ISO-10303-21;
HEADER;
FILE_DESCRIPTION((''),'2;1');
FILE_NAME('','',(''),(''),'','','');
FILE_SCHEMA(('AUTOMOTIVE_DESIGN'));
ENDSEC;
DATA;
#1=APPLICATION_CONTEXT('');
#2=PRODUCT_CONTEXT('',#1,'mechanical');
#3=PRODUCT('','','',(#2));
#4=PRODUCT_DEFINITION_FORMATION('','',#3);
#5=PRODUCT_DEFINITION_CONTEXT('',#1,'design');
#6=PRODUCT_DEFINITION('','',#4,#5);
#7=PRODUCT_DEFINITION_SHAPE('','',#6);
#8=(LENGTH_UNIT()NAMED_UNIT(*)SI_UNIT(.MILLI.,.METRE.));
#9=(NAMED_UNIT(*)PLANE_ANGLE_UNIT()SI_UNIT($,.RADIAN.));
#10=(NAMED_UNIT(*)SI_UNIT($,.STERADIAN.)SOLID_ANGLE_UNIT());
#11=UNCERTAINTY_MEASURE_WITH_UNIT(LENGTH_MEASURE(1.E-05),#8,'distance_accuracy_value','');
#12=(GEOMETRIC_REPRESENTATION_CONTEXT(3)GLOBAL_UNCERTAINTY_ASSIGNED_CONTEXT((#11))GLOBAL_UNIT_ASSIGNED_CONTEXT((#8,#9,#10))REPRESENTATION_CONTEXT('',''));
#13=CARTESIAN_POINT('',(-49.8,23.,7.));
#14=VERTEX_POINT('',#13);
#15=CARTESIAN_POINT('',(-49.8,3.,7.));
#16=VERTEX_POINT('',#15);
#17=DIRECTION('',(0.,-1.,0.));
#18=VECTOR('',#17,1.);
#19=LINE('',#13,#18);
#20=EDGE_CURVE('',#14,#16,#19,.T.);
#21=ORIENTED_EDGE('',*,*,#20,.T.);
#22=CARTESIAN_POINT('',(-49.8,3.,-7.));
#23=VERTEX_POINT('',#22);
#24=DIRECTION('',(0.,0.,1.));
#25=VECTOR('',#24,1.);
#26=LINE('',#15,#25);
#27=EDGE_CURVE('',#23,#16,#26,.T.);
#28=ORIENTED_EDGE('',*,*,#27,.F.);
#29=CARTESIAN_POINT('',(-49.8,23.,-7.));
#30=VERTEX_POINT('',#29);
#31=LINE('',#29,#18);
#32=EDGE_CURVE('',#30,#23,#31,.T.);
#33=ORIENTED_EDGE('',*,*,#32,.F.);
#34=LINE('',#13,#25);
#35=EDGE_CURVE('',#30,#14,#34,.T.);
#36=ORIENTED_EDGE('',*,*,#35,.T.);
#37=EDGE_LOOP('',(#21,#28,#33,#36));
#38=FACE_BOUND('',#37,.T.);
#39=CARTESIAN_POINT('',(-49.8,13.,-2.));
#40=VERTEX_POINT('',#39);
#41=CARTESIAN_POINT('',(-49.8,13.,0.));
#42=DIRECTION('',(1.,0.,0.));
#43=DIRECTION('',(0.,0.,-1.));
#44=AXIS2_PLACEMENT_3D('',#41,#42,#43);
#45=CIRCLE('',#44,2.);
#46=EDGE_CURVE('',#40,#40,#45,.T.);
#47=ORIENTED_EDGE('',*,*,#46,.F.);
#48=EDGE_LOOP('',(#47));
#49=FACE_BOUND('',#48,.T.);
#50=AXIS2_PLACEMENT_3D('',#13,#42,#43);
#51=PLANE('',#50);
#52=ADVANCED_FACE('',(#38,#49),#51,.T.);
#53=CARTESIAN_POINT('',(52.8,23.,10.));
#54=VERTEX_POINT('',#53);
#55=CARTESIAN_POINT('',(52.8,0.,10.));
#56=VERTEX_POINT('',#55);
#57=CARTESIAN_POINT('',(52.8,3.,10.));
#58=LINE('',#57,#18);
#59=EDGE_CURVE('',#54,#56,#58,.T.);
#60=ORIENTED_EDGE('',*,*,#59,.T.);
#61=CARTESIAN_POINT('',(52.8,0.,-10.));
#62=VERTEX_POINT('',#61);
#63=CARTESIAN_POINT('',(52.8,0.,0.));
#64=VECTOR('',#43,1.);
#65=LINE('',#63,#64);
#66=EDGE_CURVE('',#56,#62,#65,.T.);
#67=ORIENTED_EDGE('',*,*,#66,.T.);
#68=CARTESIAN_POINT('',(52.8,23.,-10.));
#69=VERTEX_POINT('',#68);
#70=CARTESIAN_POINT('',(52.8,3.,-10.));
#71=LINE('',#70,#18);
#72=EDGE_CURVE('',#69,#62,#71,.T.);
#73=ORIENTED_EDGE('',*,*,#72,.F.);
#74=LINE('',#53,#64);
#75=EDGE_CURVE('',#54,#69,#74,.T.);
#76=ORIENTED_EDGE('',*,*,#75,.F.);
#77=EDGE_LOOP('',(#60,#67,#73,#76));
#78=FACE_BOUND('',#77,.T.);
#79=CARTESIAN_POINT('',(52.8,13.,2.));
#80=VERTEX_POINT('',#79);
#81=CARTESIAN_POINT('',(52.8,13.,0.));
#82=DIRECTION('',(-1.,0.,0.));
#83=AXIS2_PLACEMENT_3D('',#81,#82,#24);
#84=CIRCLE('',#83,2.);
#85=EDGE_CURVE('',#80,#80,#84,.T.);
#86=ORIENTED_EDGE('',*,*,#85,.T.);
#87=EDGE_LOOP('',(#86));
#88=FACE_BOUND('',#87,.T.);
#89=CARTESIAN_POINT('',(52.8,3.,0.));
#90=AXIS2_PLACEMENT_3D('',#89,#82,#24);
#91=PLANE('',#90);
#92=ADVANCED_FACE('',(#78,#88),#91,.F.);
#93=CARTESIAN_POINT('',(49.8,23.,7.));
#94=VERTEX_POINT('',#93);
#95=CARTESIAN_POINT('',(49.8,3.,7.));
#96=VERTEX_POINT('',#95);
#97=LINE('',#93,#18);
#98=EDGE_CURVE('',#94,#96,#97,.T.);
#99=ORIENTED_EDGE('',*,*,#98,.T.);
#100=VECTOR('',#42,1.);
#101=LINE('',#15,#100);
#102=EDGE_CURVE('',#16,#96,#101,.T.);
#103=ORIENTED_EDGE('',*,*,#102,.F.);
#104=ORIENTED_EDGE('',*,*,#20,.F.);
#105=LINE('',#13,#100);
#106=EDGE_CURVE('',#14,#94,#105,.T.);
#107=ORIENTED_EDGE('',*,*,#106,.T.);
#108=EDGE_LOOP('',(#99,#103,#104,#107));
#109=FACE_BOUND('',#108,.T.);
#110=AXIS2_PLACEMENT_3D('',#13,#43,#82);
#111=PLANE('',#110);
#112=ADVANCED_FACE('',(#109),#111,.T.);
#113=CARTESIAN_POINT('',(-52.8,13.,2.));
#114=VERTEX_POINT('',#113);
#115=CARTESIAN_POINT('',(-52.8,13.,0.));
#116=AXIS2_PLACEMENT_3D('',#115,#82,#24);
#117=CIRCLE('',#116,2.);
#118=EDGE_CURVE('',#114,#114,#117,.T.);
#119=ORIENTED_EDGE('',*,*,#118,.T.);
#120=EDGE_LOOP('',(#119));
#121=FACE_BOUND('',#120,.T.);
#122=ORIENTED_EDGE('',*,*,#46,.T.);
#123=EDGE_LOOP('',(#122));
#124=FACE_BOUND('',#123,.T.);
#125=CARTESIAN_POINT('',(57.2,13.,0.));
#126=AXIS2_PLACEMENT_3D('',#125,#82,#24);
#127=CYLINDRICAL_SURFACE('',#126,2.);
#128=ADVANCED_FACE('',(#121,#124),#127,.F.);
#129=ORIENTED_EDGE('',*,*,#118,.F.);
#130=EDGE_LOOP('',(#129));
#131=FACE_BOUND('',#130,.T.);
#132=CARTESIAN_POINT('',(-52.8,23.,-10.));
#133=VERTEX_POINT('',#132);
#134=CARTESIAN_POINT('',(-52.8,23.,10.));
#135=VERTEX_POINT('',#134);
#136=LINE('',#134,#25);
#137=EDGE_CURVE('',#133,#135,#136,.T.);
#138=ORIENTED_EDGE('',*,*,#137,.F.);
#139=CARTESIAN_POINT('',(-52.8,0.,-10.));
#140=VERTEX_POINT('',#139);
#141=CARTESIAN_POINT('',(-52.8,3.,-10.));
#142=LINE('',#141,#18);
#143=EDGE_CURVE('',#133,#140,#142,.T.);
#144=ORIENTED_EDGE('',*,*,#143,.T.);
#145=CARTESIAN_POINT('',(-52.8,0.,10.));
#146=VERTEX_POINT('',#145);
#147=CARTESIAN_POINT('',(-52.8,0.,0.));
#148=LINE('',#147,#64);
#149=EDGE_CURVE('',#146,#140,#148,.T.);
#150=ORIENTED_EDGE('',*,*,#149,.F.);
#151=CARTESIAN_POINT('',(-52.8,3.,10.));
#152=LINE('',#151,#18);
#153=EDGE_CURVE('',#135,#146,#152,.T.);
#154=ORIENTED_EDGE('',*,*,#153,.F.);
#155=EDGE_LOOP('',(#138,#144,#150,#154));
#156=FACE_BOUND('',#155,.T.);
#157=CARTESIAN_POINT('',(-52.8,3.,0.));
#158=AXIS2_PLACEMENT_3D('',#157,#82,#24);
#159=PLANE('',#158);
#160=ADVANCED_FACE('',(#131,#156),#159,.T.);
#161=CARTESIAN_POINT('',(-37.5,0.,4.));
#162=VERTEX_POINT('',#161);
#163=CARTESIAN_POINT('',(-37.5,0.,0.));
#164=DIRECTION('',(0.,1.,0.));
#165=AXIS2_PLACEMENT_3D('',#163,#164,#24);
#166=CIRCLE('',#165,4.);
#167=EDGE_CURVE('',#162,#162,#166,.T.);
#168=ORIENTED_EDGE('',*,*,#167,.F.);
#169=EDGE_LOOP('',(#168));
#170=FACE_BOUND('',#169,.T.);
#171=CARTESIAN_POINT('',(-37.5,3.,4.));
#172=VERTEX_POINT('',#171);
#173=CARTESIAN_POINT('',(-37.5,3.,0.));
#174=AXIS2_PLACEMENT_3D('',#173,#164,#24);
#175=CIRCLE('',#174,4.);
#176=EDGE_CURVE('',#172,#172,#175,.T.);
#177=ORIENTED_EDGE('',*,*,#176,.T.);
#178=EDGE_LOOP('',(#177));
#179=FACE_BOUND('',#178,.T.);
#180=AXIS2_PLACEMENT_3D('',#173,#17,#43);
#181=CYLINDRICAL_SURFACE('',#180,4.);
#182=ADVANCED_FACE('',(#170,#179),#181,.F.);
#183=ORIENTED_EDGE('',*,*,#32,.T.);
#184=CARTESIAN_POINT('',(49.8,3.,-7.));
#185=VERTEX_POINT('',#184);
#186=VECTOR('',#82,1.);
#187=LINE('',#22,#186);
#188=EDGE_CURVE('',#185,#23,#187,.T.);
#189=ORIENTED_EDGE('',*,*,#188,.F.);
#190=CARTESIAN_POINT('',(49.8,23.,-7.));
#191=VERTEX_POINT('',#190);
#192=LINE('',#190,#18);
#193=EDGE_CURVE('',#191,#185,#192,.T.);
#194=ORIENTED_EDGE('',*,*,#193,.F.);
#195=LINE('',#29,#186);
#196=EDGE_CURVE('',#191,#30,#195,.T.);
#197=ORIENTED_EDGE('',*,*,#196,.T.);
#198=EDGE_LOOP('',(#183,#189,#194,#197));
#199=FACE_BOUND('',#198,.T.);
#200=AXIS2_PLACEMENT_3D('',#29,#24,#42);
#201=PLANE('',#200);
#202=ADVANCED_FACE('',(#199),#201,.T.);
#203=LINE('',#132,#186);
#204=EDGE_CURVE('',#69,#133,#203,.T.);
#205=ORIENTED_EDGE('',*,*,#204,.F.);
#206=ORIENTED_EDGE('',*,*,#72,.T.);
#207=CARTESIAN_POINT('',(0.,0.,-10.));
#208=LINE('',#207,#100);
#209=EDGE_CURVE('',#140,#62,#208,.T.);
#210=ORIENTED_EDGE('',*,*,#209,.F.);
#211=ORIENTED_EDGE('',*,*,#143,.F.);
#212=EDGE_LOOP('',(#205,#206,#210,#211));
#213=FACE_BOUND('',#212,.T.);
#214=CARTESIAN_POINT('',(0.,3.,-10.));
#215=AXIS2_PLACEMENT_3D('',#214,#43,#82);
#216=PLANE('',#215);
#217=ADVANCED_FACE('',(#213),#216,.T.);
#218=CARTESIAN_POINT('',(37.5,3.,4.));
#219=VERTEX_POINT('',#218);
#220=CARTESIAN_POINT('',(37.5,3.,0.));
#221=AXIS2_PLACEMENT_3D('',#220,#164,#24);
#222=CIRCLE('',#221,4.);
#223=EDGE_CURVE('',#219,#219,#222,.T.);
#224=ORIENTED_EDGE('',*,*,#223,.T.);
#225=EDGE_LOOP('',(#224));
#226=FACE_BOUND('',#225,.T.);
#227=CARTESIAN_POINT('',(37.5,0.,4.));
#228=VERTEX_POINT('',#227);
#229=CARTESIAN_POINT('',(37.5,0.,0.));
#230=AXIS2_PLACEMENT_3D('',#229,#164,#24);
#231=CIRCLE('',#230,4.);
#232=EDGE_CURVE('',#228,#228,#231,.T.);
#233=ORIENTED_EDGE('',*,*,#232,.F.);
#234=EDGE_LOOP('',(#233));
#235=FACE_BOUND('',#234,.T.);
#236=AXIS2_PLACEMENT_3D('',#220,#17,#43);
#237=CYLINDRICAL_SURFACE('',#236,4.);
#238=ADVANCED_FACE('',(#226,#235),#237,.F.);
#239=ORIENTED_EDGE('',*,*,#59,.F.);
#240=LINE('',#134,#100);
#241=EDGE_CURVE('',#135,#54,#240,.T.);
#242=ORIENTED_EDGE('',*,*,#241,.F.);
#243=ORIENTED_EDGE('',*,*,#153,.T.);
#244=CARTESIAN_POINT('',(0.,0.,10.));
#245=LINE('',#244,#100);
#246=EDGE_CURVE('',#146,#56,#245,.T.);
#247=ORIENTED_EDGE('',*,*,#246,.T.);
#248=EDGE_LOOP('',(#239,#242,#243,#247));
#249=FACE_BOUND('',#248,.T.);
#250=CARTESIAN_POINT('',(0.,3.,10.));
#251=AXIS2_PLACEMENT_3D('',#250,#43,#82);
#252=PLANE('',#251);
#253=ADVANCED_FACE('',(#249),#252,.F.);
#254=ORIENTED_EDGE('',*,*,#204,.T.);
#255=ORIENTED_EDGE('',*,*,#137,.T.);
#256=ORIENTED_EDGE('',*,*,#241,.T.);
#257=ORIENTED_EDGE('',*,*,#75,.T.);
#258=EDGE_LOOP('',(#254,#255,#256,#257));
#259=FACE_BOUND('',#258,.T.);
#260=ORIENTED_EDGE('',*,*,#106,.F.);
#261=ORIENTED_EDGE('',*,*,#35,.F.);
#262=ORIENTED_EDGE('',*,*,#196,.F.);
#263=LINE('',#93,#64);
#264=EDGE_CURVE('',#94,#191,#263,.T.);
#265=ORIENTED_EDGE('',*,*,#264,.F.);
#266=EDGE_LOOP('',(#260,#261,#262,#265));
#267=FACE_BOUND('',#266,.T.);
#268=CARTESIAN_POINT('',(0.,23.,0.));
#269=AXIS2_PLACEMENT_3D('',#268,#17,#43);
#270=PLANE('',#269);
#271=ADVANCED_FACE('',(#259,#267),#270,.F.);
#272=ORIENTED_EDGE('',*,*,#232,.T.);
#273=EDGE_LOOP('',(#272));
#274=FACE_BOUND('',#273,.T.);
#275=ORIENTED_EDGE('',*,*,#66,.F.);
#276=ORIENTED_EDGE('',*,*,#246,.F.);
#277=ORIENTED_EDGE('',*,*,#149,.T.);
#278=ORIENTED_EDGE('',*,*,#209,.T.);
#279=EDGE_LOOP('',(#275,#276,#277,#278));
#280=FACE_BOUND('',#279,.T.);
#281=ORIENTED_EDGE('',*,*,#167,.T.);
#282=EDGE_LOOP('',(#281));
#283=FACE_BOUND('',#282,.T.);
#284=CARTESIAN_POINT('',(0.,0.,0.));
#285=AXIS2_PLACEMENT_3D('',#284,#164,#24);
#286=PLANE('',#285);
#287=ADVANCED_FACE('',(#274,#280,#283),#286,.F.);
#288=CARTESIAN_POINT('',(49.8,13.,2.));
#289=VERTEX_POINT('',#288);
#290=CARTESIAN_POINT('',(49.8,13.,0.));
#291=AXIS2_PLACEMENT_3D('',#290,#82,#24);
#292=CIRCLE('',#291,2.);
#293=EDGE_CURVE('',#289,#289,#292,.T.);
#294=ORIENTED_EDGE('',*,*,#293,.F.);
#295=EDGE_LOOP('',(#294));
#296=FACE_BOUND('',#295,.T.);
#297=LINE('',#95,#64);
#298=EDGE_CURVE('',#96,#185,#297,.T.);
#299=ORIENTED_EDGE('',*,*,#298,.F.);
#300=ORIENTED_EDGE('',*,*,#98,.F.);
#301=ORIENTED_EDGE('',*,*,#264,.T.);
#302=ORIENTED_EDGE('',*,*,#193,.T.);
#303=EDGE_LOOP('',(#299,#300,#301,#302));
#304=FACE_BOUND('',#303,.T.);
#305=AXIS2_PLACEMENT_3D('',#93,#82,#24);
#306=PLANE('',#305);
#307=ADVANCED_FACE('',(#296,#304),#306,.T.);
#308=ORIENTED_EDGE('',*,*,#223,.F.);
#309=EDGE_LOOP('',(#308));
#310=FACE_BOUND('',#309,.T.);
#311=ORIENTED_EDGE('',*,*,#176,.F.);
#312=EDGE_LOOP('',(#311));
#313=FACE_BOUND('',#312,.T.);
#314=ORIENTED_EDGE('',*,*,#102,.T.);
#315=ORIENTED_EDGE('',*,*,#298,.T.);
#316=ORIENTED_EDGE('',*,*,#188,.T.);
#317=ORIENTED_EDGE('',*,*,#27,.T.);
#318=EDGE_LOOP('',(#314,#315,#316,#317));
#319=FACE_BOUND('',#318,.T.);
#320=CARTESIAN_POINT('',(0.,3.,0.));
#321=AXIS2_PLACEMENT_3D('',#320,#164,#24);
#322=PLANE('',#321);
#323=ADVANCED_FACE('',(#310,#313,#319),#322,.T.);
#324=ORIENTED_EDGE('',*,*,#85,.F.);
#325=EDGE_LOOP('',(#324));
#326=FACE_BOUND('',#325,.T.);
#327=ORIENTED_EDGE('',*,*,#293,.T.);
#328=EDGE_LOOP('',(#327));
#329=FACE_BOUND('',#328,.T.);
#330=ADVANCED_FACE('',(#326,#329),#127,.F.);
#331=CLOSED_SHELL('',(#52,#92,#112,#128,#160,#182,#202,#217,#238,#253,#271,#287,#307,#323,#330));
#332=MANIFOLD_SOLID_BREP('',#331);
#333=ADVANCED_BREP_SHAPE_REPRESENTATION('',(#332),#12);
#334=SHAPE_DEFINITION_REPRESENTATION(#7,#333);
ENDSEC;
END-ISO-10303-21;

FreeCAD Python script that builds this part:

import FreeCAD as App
import Part
import Sketcher

V = App.Vector


def add_polygon(sketch, points):
    """Adds a closed chain of lines whose ends are joined by coincident constraints."""
    first, n = sketch.GeometryCount, len(points)
    for a, b in zip(points, points[1:] + points[:1]):
        sketch.addGeometry(Part.LineSegment(App.Vector(*a, 0), App.Vector(*b, 0)), False)
    for i in range(n):
        sketch.addConstraint(Sketcher.Constraint("Coincident", first + i, 2, first + (i + 1) % n, 1))

doc = App.newDocument("Part")
body = doc.addObject("PartDesign::Body", "Body")

# Sketch on XZ plane
sketch1 = body.newObject("Sketcher::SketchObject", "Sketch")
sketch1.AttachmentSupport = (doc.getObject("XZ_Plane"), [""])
sketch1.MapMode = "FlatFace"
add_polygon(sketch1, [(-52.8, -10), (-52.8, 10), (52.8, 10), (52.8, -10)])  # lines 0-3
sketch1.addGeometry(Part.Circle(V(-37.5, 0, 0), V(0, 0, 1), 4), False)  # 4
sketch1.addGeometry(Part.Circle(V(37.5, 0, 0), V(0, 0, 1), 4), False)  # 5
sketch1.addConstraint([
    Sketcher.Constraint("Vertical", 0),
    Sketcher.Constraint("Horizontal", 1),
    Sketcher.Constraint("Vertical", 2),
    Sketcher.Constraint("Horizontal", 3),
    Sketcher.Constraint("Equal", 4, 5),
    Sketcher.Constraint("Symmetric", 4, 3, 5, 3, -1, 1),
    Sketcher.Constraint("Symmetric", 0, 2, 2, 2, -1, 1),
    Sketcher.Constraint("PointOnObject", 4, 3, -1),
    Sketcher.Constraint("Diameter", 4, 8.0),
    Sketcher.Constraint("DistanceY", 0, 1, 0, 2, 20.0),
    Sketcher.Constraint("DistanceX", 1, 1, 1, 2, 105.6),
    Sketcher.Constraint("DistanceX", 4, 3, 5, 3, 75.0),
])
pad1 = body.newObject("PartDesign::Pad", "Pad")
pad1.Profile = sketch1
pad1.Length = 3
pad1.Reversed = True

# Sketch on XZ plane
sketch2 = body.newObject("Sketcher::SketchObject", "Sketch001")
sketch2.AttachmentSupport = (doc.getObject("XZ_Plane"), [""])
sketch2.MapMode = "FlatFace"
sketch2.AttachmentOffset = App.Placement(V(0, 0, -3), App.Rotation())
add_polygon(sketch2, [(-53, -10), (-53, 10), (53, 10), (53, -10)])  # lines 0-3
add_polygon(sketch2, [(50, 7), (-50, 7), (-50, -7), (50, -7)])  # lines 4-7
sketch2.addConstraint([
    Sketcher.Constraint("Vertical", 0),
    Sketcher.Constraint("Horizontal", 1),
    Sketcher.Constraint("Vertical", 2),
    Sketcher.Constraint("Horizontal", 3),
    Sketcher.Constraint("Horizontal", 4),
    Sketcher.Constraint("Vertical", 5),
    Sketcher.Constraint("Horizontal", 6),
    Sketcher.Constraint("Vertical", 7),
    Sketcher.Constraint("Symmetric", 0, 2, 2, 2, -1, 1),
    Sketcher.Constraint("Symmetric", 4, 2, 6, 2, -1, 1),
    Sketcher.Constraint("DistanceY", 0, 1, 0, 2, 20.0),
    Sketcher.Constraint("DistanceY", 5, 2, 5, 1, 14.0),
    Sketcher.Constraint("DistanceX", 1, 1, 1, 2, 105.6),
    Sketcher.Constraint("DistanceX", 4, 2, 4, 1, 99.6),
])
pad2 = body.newObject("PartDesign::Pad", "Pad001")
pad2.Profile = sketch2
pad2.Length = 20
pad2.Reversed = True

# Sketch on YZ plane
sketch3 = body.newObject("Sketcher::SketchObject", "Sketch002")
sketch3.AttachmentSupport = (doc.getObject("YZ_Plane"), [""])
sketch3.MapMode = "FlatFace"
sketch3.AttachmentOffset = App.Placement(V(0, 0, -52.8), App.Rotation())
sketch3.addGeometry(Part.Circle(V(13, 0, 0), V(0, 0, 1), 2), False)
sketch3.addConstraint([
    Sketcher.Constraint("PointOnObject", 0, 3, -1),
    Sketcher.Constraint("Diameter", 0, 4.0),
    Sketcher.Constraint("DistanceX", -1, 1, 0, 3, 13.0),
])
pocket1 = body.newObject("PartDesign::Pocket", "Pocket")
pocket1.Profile = sketch3
pocket1.Length = 110
pocket1.Reversed = True

doc.recompute()
